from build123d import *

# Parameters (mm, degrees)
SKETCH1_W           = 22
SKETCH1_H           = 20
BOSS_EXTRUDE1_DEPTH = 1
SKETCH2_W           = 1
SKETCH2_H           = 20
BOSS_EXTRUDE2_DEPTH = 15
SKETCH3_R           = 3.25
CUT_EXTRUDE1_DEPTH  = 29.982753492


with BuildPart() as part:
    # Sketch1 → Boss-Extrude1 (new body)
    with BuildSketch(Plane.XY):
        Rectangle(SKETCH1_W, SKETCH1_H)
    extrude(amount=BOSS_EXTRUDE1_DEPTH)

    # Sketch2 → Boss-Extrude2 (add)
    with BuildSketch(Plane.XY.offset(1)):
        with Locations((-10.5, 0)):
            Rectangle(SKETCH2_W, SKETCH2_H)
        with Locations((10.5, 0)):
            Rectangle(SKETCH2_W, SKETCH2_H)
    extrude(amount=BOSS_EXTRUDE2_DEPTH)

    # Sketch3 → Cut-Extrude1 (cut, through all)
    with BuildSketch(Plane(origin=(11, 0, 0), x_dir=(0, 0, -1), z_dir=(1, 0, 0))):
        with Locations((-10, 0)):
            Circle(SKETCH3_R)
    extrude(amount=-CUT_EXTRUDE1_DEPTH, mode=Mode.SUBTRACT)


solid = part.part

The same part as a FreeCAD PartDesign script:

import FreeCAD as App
import Part
import Sketcher

V = App.Vector
Q = App.Units.Quantity


def add_polygon(sketch, points):
    """Adds a closed chain of lines whose ends are joined by coincident constraints."""
    first, n = sketch.GeometryCount, len(points)
    for a, b in zip(points, points[1:] + points[:1]):
        sketch.addGeometry(Part.LineSegment(App.Vector(*a, 0), App.Vector(*b, 0)), False)
    for i in range(n):
        sketch.addConstraint(Sketcher.Constraint("Coincident", first + i, 2, first + (i + 1) % n, 1))

doc = App.newDocument("Part")
params = doc.addObject("Spreadsheet::Sheet", "Params")
for row, (alias, value) in enumerate([
    ("sketch1_width", "22 mm"),
    ("sketch1_height", "20 mm"),
    ("pad1_length", "1 mm"),
    ("sketch2_width", "1 mm"),
    ("sketch2_height", "20 mm"),
    ("pad2_length", "15 mm"),
    ("sketch3_diameter", "6.5 mm"),
], start=1):
    params.set(f"A{row}", alias)
    params.set(f"B{row}", "=" + value)
    params.setAlias(f"B{row}", alias)

body = doc.addObject("PartDesign::Body", "Body")

sketch1 = doc.addObject("Sketcher::SketchObject", "Sketch")
body.addObject(sketch1)
sketch1.AttachmentSupport = (doc.XY_Plane, [""])
sketch1.MapMode = "FlatFace"
add_polygon(sketch1, [(-11, 10), (-11, -10), (11, -10), (11, 10)])
sketch1.addConstraint(Sketcher.Constraint("Vertical", 0))
sketch1.addConstraint(Sketcher.Constraint("Horizontal", 1))
sketch1.addConstraint(Sketcher.Constraint("Vertical", 2))
sketch1.addConstraint(Sketcher.Constraint("Horizontal", 3))
sketch1.addConstraint(Sketcher.Constraint("Symmetric", 0, 2, 2, 2, -1, 1))
sketch1.addConstraint(Sketcher.Constraint("DistanceX", 1, 1, 1, 2, Q("22 mm")))
sketch1.addConstraint(Sketcher.Constraint("DistanceY", 0, 2, 0, 1, Q("20 mm")))
sketch1.setExpression("Constraints[9]", "Params.sketch1_width")
sketch1.setExpression("Constraints[10]", "Params.sketch1_height")
pad1 = doc.addObject("PartDesign::Pad", "Pad")
body.addObject(pad1)
pad1.Profile = sketch1
pad1.setExpression("Length", "Params.pad1_length")

sketch2 = doc.addObject("Sketcher::SketchObject", "Sketch001")
body.addObject(sketch2)
sketch2.AttachmentSupport = (doc.XY_Plane, [""])
sketch2.MapMode = "FlatFace"
sketch2.AttachmentOffset = App.Placement(V(0, 0, 1), App.Rotation())
add_polygon(sketch2, [(-11, 10), (-11, -10), (-10, -10), (-10, 10)])
add_polygon(sketch2, [(10, 10), (10, -10), (11, -10), (11, 10)])
sketch2.addConstraint(Sketcher.Constraint("Vertical", 0))
sketch2.addConstraint(Sketcher.Constraint("Horizontal", 1))
sketch2.addConstraint(Sketcher.Constraint("Vertical", 2))
sketch2.addConstraint(Sketcher.Constraint("Horizontal", 3))
sketch2.addConstraint(Sketcher.Constraint("Vertical", 4))
sketch2.addConstraint(Sketcher.Constraint("Horizontal", 5))
sketch2.addConstraint(Sketcher.Constraint("Vertical", 6))
sketch2.addConstraint(Sketcher.Constraint("Horizontal", 7))
sketch2.addConstraint(Sketcher.Constraint("Symmetric", 2, 2, 4, 2, -1, 1))
sketch2.addConstraint(Sketcher.Constraint("Symmetric", 0, 2, 6, 2, -1, 1))
sketch2.addConstraint(Sketcher.Constraint("Horizontal", 1, 2, 4, 2))
sketch2.addConstraint(Sketcher.Constraint("DistanceX", 1, 1, 1, 2, Q("1 mm")))
sketch2.addConstraint(Sketcher.Constraint("DistanceY", 0, 2, 0, 1, Q("20 mm")))
sketch2.addConstraint(Sketcher.Constraint("DistanceX", 0, 2, -1, 1, Q("11 mm")))
sketch2.setExpression("Constraints[19]", "Params.sketch2_width")
sketch2.setExpression("Constraints[20]", "Params.sketch2_height")
pad2 = doc.addObject("PartDesign::Pad", "Pad001")
body.addObject(pad2)
pad2.Profile = sketch2
pad2.setExpression("Length", "Params.pad2_length")

sketch3 = doc.addObject("Sketcher::SketchObject", "Sketch002")
body.addObject(sketch3)
sketch3.AttachmentSupport = (doc.YZ_Plane, [""])
sketch3.MapMode = "FlatFace"
sketch3.AttachmentOffset = App.Placement(V(0, 0, 11), App.Rotation())
sketch3.addGeometry(Part.Circle(V(0, 10, 0), V(0, 0, 1), 3.2), False)
sketch3.addConstraint(Sketcher.Constraint("PointOnObject", 0, 3, -2))
sketch3.addConstraint(Sketcher.Constraint("Diameter", 0, Q("6.5 mm")))
sketch3.addConstraint(Sketcher.Constraint("DistanceY", -1, 1, 0, 3, Q("10 mm")))
sketch3.setExpression("Constraints[1]", "Params.sketch3_diameter")
pocket1 = doc.addObject("PartDesign::Pocket", "Pocket")
body.addObject(pocket1)
pocket1.Profile = sketch3
pocket1.Type = "ThroughAll"

doc.recompute()
